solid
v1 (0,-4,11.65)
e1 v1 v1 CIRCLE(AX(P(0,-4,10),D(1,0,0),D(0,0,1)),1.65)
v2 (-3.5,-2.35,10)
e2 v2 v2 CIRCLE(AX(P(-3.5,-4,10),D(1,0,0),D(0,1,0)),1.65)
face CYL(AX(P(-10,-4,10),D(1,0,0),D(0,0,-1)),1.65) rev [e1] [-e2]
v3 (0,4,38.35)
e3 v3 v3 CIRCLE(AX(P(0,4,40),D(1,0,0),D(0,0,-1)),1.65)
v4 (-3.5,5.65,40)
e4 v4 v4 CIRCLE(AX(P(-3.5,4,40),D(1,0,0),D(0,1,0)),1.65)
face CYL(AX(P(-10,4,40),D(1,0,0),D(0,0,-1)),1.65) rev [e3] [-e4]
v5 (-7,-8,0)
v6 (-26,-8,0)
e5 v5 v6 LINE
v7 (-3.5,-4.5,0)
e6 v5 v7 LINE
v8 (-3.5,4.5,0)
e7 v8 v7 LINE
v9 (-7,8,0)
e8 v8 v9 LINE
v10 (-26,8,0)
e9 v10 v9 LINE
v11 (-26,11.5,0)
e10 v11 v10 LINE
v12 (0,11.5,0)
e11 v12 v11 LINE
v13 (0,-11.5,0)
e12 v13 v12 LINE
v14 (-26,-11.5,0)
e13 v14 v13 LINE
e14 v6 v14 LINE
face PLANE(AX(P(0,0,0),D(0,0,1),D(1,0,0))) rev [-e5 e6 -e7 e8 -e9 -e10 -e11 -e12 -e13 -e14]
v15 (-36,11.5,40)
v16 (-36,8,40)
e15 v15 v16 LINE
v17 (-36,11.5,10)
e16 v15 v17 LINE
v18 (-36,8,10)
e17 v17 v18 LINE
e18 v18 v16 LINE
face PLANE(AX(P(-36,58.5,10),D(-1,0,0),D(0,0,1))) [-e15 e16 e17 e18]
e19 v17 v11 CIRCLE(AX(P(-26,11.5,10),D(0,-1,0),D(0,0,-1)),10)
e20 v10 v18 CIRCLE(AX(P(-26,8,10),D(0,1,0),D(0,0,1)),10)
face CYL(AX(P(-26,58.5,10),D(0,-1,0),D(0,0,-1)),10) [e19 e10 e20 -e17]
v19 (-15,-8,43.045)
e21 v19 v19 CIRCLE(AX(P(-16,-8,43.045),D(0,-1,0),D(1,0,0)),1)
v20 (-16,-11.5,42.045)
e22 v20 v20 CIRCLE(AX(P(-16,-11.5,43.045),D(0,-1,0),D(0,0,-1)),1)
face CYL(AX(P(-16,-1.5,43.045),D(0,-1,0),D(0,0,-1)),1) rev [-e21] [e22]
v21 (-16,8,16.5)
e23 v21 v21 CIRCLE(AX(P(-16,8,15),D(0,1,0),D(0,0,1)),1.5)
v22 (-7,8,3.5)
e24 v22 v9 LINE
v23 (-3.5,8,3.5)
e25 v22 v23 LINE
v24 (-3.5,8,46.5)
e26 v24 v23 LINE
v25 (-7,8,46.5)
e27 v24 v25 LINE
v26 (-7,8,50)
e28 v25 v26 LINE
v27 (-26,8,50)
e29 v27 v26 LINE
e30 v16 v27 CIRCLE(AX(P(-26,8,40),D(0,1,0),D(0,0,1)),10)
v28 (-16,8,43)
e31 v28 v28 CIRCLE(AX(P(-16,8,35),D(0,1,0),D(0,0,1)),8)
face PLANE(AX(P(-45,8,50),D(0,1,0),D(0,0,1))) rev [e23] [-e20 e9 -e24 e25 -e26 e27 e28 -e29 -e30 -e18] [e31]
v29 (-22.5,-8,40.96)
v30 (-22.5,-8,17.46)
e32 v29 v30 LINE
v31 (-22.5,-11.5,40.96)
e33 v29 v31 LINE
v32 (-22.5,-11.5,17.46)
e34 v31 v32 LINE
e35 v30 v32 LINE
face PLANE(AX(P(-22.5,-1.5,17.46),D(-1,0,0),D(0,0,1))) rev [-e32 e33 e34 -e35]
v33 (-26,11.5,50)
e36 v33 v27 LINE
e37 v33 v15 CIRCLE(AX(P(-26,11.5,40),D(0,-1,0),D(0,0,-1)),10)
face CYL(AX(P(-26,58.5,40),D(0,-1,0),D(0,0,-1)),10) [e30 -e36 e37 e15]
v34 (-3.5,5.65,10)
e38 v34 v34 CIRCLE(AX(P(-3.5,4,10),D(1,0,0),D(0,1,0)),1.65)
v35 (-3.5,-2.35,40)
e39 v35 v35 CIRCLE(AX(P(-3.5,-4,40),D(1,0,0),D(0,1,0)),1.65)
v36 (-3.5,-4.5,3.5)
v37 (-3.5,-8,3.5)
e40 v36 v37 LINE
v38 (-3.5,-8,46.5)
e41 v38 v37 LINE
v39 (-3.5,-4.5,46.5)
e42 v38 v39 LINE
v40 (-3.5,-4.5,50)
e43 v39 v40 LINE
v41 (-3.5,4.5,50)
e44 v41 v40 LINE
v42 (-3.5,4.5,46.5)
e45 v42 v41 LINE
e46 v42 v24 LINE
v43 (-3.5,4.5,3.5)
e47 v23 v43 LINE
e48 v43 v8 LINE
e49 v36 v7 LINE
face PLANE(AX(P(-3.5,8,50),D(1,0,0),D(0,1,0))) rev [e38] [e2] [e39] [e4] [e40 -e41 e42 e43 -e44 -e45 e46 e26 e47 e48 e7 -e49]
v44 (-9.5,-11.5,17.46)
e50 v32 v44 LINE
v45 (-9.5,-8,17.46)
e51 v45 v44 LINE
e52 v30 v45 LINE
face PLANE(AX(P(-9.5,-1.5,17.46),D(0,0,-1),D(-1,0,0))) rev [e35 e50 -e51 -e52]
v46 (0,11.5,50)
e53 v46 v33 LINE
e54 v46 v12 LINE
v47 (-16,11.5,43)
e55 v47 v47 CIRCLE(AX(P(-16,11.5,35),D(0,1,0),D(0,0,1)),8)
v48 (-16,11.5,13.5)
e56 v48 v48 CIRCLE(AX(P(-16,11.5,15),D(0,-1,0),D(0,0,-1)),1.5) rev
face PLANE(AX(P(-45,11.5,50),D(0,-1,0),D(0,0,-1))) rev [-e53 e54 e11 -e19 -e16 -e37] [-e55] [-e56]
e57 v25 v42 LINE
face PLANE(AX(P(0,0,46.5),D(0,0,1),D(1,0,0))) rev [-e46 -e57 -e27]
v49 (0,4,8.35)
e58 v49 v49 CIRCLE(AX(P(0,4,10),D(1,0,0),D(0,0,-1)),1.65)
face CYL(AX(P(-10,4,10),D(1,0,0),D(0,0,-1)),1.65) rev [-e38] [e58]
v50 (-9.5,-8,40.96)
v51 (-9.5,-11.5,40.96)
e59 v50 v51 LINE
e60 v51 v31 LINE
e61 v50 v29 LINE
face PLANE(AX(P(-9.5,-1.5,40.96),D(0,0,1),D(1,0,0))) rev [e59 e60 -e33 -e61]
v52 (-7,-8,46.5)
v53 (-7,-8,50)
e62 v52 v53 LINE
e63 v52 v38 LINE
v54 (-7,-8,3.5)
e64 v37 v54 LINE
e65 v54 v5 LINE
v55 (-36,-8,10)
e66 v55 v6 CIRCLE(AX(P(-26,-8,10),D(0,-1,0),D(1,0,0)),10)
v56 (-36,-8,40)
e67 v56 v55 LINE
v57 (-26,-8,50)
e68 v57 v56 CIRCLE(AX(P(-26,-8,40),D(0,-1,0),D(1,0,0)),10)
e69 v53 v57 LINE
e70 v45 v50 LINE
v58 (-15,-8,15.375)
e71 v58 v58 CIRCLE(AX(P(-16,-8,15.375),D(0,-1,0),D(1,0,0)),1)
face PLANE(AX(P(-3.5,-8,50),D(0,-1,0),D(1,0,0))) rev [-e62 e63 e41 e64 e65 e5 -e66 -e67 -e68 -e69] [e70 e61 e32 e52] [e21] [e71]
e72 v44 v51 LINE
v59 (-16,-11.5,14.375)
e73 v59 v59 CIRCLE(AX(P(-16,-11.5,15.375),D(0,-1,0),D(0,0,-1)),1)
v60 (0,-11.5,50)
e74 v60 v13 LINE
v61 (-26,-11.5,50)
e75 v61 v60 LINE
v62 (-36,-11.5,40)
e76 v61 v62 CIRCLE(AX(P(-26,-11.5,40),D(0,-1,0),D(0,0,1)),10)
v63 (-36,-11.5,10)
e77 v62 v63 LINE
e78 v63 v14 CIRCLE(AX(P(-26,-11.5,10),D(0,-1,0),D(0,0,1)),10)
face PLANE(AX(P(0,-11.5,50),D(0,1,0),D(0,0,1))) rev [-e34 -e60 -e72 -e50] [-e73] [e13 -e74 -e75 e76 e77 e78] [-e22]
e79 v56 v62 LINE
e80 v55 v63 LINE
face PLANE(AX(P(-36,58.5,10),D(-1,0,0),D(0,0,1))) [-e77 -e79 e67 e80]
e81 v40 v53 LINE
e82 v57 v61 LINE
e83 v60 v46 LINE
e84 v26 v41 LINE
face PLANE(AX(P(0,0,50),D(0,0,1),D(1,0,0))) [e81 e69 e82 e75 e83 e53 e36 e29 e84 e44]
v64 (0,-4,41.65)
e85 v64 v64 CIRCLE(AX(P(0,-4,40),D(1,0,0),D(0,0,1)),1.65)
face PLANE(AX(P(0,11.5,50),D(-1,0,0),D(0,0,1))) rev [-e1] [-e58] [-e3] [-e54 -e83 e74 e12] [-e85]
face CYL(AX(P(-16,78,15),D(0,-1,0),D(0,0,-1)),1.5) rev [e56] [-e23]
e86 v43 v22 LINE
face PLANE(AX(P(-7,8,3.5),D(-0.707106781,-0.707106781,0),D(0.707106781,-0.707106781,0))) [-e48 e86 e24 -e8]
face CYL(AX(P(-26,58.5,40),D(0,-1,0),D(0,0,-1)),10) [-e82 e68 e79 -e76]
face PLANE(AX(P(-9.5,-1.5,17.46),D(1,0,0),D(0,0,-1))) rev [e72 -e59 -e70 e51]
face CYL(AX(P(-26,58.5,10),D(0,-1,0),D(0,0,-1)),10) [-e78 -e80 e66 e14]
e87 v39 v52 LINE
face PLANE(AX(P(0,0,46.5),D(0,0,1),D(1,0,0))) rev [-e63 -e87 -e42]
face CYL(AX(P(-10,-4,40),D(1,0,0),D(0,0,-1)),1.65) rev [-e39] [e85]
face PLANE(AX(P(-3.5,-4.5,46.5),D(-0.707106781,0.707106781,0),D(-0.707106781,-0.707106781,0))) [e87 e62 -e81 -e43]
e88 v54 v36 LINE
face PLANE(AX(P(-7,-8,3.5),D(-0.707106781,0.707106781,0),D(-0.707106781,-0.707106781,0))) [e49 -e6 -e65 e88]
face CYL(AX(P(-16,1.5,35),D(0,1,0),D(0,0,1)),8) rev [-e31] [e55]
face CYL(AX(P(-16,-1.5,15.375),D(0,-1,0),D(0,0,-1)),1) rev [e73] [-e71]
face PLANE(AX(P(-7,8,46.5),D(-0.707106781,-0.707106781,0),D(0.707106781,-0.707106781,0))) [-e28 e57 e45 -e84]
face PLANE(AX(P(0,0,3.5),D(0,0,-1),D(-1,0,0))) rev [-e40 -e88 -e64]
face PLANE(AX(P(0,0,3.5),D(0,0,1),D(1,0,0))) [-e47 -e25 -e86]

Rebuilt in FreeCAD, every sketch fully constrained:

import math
import FreeCAD as App
import Part
import Sketcher

V = App.Vector
Q = App.Units.Quantity


def add_polygon(sketch, points):
    """Adds a closed chain of lines whose ends are joined by coincident constraints."""
    first, n = sketch.GeometryCount, len(points)
    for a, b in zip(points, points[1:] + points[:1]):
        sketch.addGeometry(Part.LineSegment(App.Vector(*a, 0), App.Vector(*b, 0)), False)
    for i in range(n):
        sketch.addConstraint(Sketcher.Constraint("Coincident", first + i, 2, first + (i + 1) % n, 1))

doc = App.newDocument("Part")
body = doc.addObject("PartDesign::Body", "Body")

sketch1 = body.newObject("Sketcher::SketchObject", "Sketch")
sketch1.AttachmentSupport = (doc.getObject("XY_Plane"), [""])
sketch1.MapMode = "FlatFace"
add_polygon(sketch1, [(0, 11.5), (-45, 11.5), (-45, 8), (-3.5, 8), (-3.5, -8), (-45, -8), (-45, -11.5), (0, -11.5)])
sketch1.addConstraint([
    Sketcher.Constraint("Horizontal", 0),
    Sketcher.Constraint("Vertical", 1),
    Sketcher.Constraint("Horizontal", 2),
    Sketcher.Constraint("Vertical", 3),
    Sketcher.Constraint("Horizontal", 4),
    Sketcher.Constraint("Vertical", 5),
    Sketcher.Constraint("Horizontal", 6),
    Sketcher.Constraint("Vertical", 7),
    Sketcher.Constraint("Symmetric", 6, 2, 7, 2, -1, 1),
    Sketcher.Constraint("Symmetric", 1, 2, 4, 2, -1),
    Sketcher.Constraint("DistanceX", 0, 2, 0, 1, Q("45 mm")),
    Sketcher.Constraint("DistanceY", 3, 2, 3, 1, Q("16 mm")),
    Sketcher.Constraint("DistanceY", 7, 1, 7, 2, Q("23 mm")),
    Sketcher.Constraint("DistanceX", 2, 1, 2, 2, Q("41.5 mm")),
])
pad1 = body.newObject("PartDesign::Pad", "Pad")
pad1.Profile = sketch1
pad1.Length = 50

sketch2 = body.newObject("Sketcher::SketchObject", "Sketch001")
sketch2.AttachmentSupport = (doc.getObject("XZ_Plane"), [""])
sketch2.MapMode = "FlatFace"
sketch2.AttachmentOffset = App.Placement(V(0, 0, -8), App.Rotation())
sketch2.addGeometry([
    Part.Circle(V(-16, 35, 0), V(0, 0, 1), 1.5),
    Part.Circle(V(-16, 15, 0), V(0, 0, 1), 1.5),
], False)
sketch2.addConstraint([
    Sketcher.Constraint("Equal", 0, 1),
    Sketcher.Constraint("Vertical", 0, 3, 1, 3),
    Sketcher.Constraint("Diameter", 0, Q("3 mm")),
    Sketcher.Constraint("DistanceX", 0, 3, -1, 1, Q("16 mm")),
    Sketcher.Constraint("DistanceY", -1, 1, 0, 3, Q("35 mm")),
    Sketcher.Constraint("DistanceY", -1, 1, 1, 3, Q("15 mm")),
])
pocket1 = body.newObject("PartDesign::Pocket", "Pocket")
pocket1.Profile = sketch2
pocket1.Length = 70

sketch3 = body.newObject("Sketcher::SketchObject", "Sketch002")
sketch3.AttachmentSupport = (doc.getObject("XZ_Plane"), [""])
sketch3.MapMode = "FlatFace"
sketch3.AttachmentOffset = App.Placement(V(0, 0, 11.5), App.Rotation())
add_polygon(sketch3, [(-53.109, 58.109), (-53.109, -8.109), (8.109, -8.109), (8.109, 58.109)])
sketch3.addGeometry(Part.ArcOfCircle(Part.Circle(V(-26, 10, 0), V(0, 0, 1), 10), math.radians(180), math.radians(270)), False)
sketch3.addGeometry(Part.LineSegment(V(-36, 10, 0), V(-36, 40, 0)), False)
sketch3.addGeometry(Part.ArcOfCircle(Part.Circle(V(-26, 40, 0), V(0, 0, 1), 10), math.radians(90), math.radians(180)), False)
sketch3.addGeometry(Part.LineSegment(V(-26, 50, 0), V(0, 50, 0)), False)
sketch3.addGeometry(Part.LineSegment(V(0, 50, 0), V(0, 0, 0)), False)
sketch3.addGeometry(Part.LineSegment(V(0, 0, 0), V(-26, 0, 0)), False)
sketch3.addConstraint([
    Sketcher.Constraint("Tangent", 4, 1, 5, 1),
    Sketcher.Constraint("Tangent", 5, 2, 6, 2),
    Sketcher.Constraint("Tangent", 6, 1, 7, 1),
    Sketcher.Constraint("Coincident", 7, 2, 8, 1),
    Sketcher.Constraint("Coincident", 8, 2, 9, 1),
    Sketcher.Constraint("Tangent", 9, 2, 4, 2),
    Sketcher.Constraint("Vertical", 0),
    Sketcher.Constraint("Horizontal", 1),
    Sketcher.Constraint("Vertical", 2),
    Sketcher.Constraint("Horizontal", 3),
    Sketcher.Constraint("Vertical", 5),
    Sketcher.Constraint("Horizontal", 7),
    Sketcher.Constraint("Vertical", 8),
    Sketcher.Constraint("Horizontal", 9),
    Sketcher.Constraint("Coincident", 8, 2, -1, 1),
    Sketcher.Constraint("Equal", 4, 6),
    Sketcher.Constraint("Radius", 4, Q("10 mm")),
    Sketcher.Constraint("DistanceX", 7, 1, 7, 2, Q("26 mm")),
    Sketcher.Constraint("DistanceY", 5, 1, 5, 2, Q("30 mm")),
    Sketcher.Constraint("DistanceX", 1, 1, 1, 2, Q("61.218 mm")),
    Sketcher.Constraint("DistanceY", 0, 2, 0, 1, Q("66.218 mm")),
    Sketcher.Constraint("DistanceX", 0, 2, -1, 1, Q("53.109 mm")),
    Sketcher.Constraint("DistanceY", 0, 2, -1, 1, Q("8.109 mm")),
])
pocket2 = body.newObject("PartDesign::Pocket", "Pocket001")
pocket2.Profile = sketch3
pocket2.Length = 70

sketch4 = body.newObject("Sketcher::SketchObject", "Sketch003")
sketch4.AttachmentSupport = (doc.getObject("XZ_Plane"), [""])
sketch4.MapMode = "FlatFace"
sketch4.AttachmentOffset = App.Placement(V(0, 0, 11.5), App.Rotation())
sketch4.addGeometry([
    Part.Circle(V(-16, 43.045, 0), V(0, 0, 1), 1),
    Part.Circle(V(-16, 15.375, 0), V(0, 0, 1), 1),
], False)
sketch4.addConstraint([
    Sketcher.Constraint("Equal", 0, 1),
    Sketcher.Constraint("Vertical", 0, 3, 1, 3),
    Sketcher.Constraint("Diameter", 0, Q("2 mm")),
    Sketcher.Constraint("DistanceX", 0, 3, -1, 1, Q("16 mm")),
    Sketcher.Constraint("DistanceY", 1, 3, 0, 3, Q("27.67 mm")),
    Sketcher.Constraint("DistanceY", -1, 1, 0, 3, Q("43.045 mm")),
])
pocket3 = body.newObject("PartDesign::Pocket", "Pocket002")
pocket3.Profile = sketch4
pocket3.Length = 10

sketch5 = body.newObject("Sketcher::SketchObject", "Sketch004")
sketch5.AttachmentSupport = (doc.getObject("XZ_Plane"), [""])
sketch5.MapMode = "FlatFace"
sketch5.AttachmentOffset = App.Placement(V(0, 0, 11.5), App.Rotation())
add_polygon(sketch5, [(-22.5, 40.96), (-22.5, 17.46), (-9.5, 17.46), (-9.5, 40.96)])
sketch5.addConstraint([
    Sketcher.Constraint("Vertical", 0),
    Sketcher.Constraint("Horizontal", 1),
    Sketcher.Constraint("Vertical", 2),
    Sketcher.Constraint("Horizontal", 3),
    Sketcher.Constraint("DistanceX", 1, 1, 1, 2, Q("13 mm")),
    Sketcher.Constraint("DistanceY", 0, 2, 0, 1, Q("23.5 mm")),
    Sketcher.Constraint("DistanceX", 0, 2, -1, 1, Q("22.5 mm")),
    Sketcher.Constraint("DistanceY", -1, 1, 0, 2, Q("17.46 mm")),
])
pocket4 = body.newObject("PartDesign::Pocket", "Pocket003")
pocket4.Profile = sketch5
pocket4.Length = 10

sketch6 = body.newObject("Sketcher::SketchObject", "Sketch005")
sketch6.AttachmentSupport = (doc.getObject("YZ_Plane"), [""])
sketch6.MapMode = "FlatFace"
sketch6.addGeometry([
    Part.Circle(V(4, 10, 0), V(0, 0, 1), 1.65),
    Part.Circle(V(4, 40, 0), V(0, 0, 1), 1.65),
    Part.Circle(V(-4, 10, 0), V(0, 0, 1), 1.65),
    Part.Circle(V(-4, 40, 0), V(0, 0, 1), 1.65),
], False)
sketch6.addConstraint([
    Sketcher.Constraint("Equal", 0, 1),
    Sketcher.Constraint("Equal", 1, 2),
    Sketcher.Constraint("Equal", 2, 3),
    Sketcher.Constraint("Symmetric", 0, 3, 2, 3, -2),
    Sketcher.Constraint("Symmetric", 1, 3, 3, 3, -2),
    Sketcher.Constraint("Vertical", 0, 3, 1, 3),
    Sketcher.Constraint("Diameter", 0, Q("3.3 mm")),
    Sketcher.Constraint("DistanceX", -1, 1, 0, 3, Q("4 mm")),
    Sketcher.Constraint("DistanceY", -1, 1, 0, 3, Q("10 mm")),
    Sketcher.Constraint("DistanceY", -1, 1, 1, 3, Q("40 mm")),
])
pocket5 = body.newObject("PartDesign::Pocket", "Pocket004")
pocket5.Profile = sketch6
pocket5.Length = 10

sketch7 = body.newObject("Sketcher::SketchObject", "Sketch006")
sketch7.AttachmentSupport = (doc.getObject("XZ_Plane"), [""])
sketch7.MapMode = "FlatFace"
sketch7.AttachmentOffset = App.Placement(V(0, 0, -11.5), App.Rotation())
sketch7.addGeometry(Part.Circle(V(-16, 35, 0), V(0, 0, 1), 8), False)
sketch7.addConstraint([
    Sketcher.Constraint("Diameter", 0, Q("16 mm")),
    Sketcher.Constraint("DistanceX", 0, 3, -1, 1, Q("16 mm")),
    Sketcher.Constraint("DistanceY", -1, 1, 0, 3, Q("35 mm")),
])
pocket6 = body.newObject("PartDesign::Pocket", "Pocket005")
pocket6.Profile = sketch7
pocket6.Length = 10
pocket6.Reversed = True

sketch8 = body.newObject("Sketcher::SketchObject", "Sketch007")
sketch8.AttachmentSupport = (doc.getObject("XY_Plane"), [""])
sketch8.MapMode = "FlatFace"
add_polygon(sketch8, [(-3.5, 8), (-3.5, 4.5), (-7, 8)])
add_polygon(sketch8, [(-3.5, -8), (-7, -8), (-3.5, -4.5)])
sketch8.addConstraint([
    Sketcher.Constraint("Vertical", 0),
    Sketcher.Constraint("Horizontal", 2),
    Sketcher.Constraint("Horizontal", 3),
    Sketcher.Constraint("Vertical", 5),
    Sketcher.Constraint("Symmetric", 1, 2, 3, 2, -1),
    Sketcher.Constraint("Symmetric", 0, 2, 4, 2, -1),
    Sketcher.Constraint("Perpendicular", 1, 4),
    Sketcher.Constraint("DistanceX", 2, 1, 2, 2, Q("3.5 mm")),
    Sketcher.Constraint("DistanceX", 1, 2, -1, 1, Q("7 mm")),
    Sketcher.Constraint("DistanceY", -1, 1, 1, 2, Q("8 mm")),
])
pad2 = body.newObject("PartDesign::Pad", "Pad001")
pad2.Profile = sketch8
pad2.Length = 3.5

sketch9 = body.newObject("Sketcher::SketchObject", "Sketch008")
sketch9.AttachmentSupport = (doc.getObject("XY_Plane"), [""])
sketch9.MapMode = "FlatFace"
sketch9.AttachmentOffset = App.Placement(V(0, 0, 50), App.Rotation())
add_polygon(sketch9, [(-3.5, 8), (-7, 8), (-3.5, 4.5)])
add_polygon(sketch9, [(-3.5, -8), (-3.5, -4.5), (-7, -8)])
sketch9.addConstraint([
    Sketcher.Constraint("Horizontal", 0),
    Sketcher.Constraint("Vertical", 2),
    Sketcher.Constraint("Vertical", 3),
    Sketcher.Constraint("Horizontal", 5),
    Sketcher.Constraint("Symmetric", 1, 2, 3, 2, -1),
    Sketcher.Constraint("Symmetric", 0, 2, 4, 2, -1),
    Sketcher.Constraint("Perpendicular", 1, 4),
    Sketcher.Constraint("DistanceX", 0, 2, 0, 1, Q("3.5 mm")),
    Sketcher.Constraint("DistanceX", 0, 2, -1, 1, Q("7 mm")),
    Sketcher.Constraint("DistanceY", -1, 1, 0, 2, Q("8 mm")),
])
pad3 = body.newObject("PartDesign::Pad", "Pad002")
pad3.Profile = sketch9
pad3.Length = 3.5
pad3.Reversed = True

doc.recompute()
